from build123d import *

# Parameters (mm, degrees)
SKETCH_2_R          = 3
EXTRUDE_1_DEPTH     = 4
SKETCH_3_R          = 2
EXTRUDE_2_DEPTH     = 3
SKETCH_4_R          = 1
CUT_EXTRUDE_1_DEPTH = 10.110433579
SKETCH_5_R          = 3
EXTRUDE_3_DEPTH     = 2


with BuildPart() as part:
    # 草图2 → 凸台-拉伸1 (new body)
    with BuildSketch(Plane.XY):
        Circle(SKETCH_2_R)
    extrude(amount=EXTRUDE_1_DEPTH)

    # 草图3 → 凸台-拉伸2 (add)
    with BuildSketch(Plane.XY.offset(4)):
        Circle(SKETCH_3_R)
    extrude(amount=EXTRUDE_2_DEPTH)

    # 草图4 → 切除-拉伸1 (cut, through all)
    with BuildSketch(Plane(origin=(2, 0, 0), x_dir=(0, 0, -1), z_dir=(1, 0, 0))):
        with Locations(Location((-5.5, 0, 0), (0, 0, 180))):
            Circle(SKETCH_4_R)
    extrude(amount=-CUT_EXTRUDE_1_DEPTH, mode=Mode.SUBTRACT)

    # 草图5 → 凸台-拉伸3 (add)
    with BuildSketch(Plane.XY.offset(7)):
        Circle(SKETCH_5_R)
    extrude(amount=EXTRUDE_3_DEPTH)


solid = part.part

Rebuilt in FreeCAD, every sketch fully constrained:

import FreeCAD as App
import Part
import Sketcher

V = App.Vector

doc = App.newDocument("Part")
body = doc.addObject("PartDesign::Body", "Body")

sketch1 = doc.addObject("Sketcher::SketchObject", "Sketch")
body.addObject(sketch1)
sketch1.AttachmentSupport = (doc.XY_Plane, [""])
sketch1.MapMode = "FlatFace"
sketch1.addGeometry(Part.Circle(V(0, 0, 0), V(0, 0, 1), 3), False)
sketch1.addConstraint(Sketcher.Constraint("Coincident", 0, 3, -1, 1))
sketch1.addConstraint(Sketcher.Constraint("Diameter", 0, 6.0))
pad1 = doc.addObject("PartDesign::Pad", "Pad")
body.addObject(pad1)
pad1.Profile = sketch1
pad1.Length = 4

sketch2 = doc.addObject("Sketcher::SketchObject", "Sketch001")
body.addObject(sketch2)
sketch2.AttachmentSupport = (doc.XY_Plane, [""])
sketch2.MapMode = "FlatFace"
sketch2.AttachmentOffset = App.Placement(V(0, 0, 4), App.Rotation())
sketch2.addGeometry(Part.Circle(V(0, 0, 0), V(0, 0, 1), 2), False)
sketch2.addConstraint(Sketcher.Constraint("Coincident", 0, 3, -1, 1))
sketch2.addConstraint(Sketcher.Constraint("Diameter", 0, 4.0))
pad2 = doc.addObject("PartDesign::Pad", "Pad001")
body.addObject(pad2)
pad2.Profile = sketch2
pad2.Length = 3

sketch3 = doc.addObject("Sketcher::SketchObject", "Sketch002")
body.addObject(sketch3)
sketch3.AttachmentSupport = (doc.YZ_Plane, [""])
sketch3.MapMode = "FlatFace"
sketch3.AttachmentOffset = App.Placement(V(0, 0, 2), App.Rotation())
sketch3.addGeometry(Part.Circle(V(0, 5.5, 0), V(0, 0, 1), 1), False)
sketch3.addConstraint(Sketcher.Constraint("PointOnObject", 0, 3, -2))
sketch3.addConstraint(Sketcher.Constraint("Diameter", 0, 2.0))
sketch3.addConstraint(Sketcher.Constraint("DistanceY", -1, 1, 0, 3, 5.5))
pocket1 = doc.addObject("PartDesign::Pocket", "Pocket")
body.addObject(pocket1)
pocket1.Profile = sketch3
pocket1.Type = "ThroughAll"

sketch4 = doc.addObject("Sketcher::SketchObject", "Sketch003")
body.addObject(sketch4)
sketch4.AttachmentSupport = (doc.XY_Plane, [""])
sketch4.MapMode = "FlatFace"
sketch4.AttachmentOffset = App.Placement(V(0, 0, 7), App.Rotation())
sketch4.addGeometry(Part.Circle(V(0, 0, 0), V(0, 0, 1), 3), False)
sketch4.addConstraint(Sketcher.Constraint("Coincident", 0, 3, -1, 1))
sketch4.addConstraint(Sketcher.Constraint("Diameter", 0, 6.0))
pad3 = doc.addObject("PartDesign::Pad", "Pad002")
body.addObject(pad3)
pad3.Profile = sketch4
pad3.Length = 2

doc.recompute()
